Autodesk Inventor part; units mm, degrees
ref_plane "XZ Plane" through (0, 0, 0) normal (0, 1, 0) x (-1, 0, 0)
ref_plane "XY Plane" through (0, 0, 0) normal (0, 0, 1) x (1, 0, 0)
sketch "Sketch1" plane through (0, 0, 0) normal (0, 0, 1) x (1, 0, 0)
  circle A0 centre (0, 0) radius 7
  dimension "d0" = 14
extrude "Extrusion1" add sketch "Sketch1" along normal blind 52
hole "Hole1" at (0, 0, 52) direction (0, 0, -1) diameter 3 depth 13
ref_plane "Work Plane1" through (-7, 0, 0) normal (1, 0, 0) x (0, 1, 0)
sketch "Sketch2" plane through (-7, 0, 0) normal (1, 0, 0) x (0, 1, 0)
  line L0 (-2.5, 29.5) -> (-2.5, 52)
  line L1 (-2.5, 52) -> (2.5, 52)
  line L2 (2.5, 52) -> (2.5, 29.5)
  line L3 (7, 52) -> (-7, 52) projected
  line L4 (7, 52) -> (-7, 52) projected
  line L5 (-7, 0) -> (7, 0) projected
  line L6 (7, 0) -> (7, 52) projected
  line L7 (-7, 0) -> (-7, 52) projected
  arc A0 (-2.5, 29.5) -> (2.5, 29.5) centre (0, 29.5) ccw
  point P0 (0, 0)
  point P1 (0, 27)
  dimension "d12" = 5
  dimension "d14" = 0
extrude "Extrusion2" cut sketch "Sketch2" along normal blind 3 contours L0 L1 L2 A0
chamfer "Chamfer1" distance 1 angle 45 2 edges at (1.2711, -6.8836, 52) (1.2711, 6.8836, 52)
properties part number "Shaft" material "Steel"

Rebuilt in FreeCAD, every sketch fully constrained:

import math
import FreeCAD as App
import Part
import Sketcher

V = App.Vector
Q = App.Units.Quantity


def edges_at(feature, points):
    """Names of the edges that pass closest to the given points."""
    edges = feature.Shape.Edges
    near = lambda p: min(range(len(edges)), key=lambda i: edges[i].distToShape(Part.Vertex(*p))[0])
    return sorted({f"Edge{near(p) + 1}" for p in points})

doc = App.newDocument("Part")
params = doc.addObject("Spreadsheet::Sheet", "Params")
for row, (alias, value) in enumerate([
    ("sketch1_diameter", "14 mm"),
    ("pad1_length", "52 mm"),
    ("sketch2_diameter", "3 mm"),
    ("hole_diameter", "3 mm"),
    ("hole_depth", "13 mm"),
    ("sketch3_radius", "2.5 mm"),
    ("sketch3_height", "22.5 mm"),
    ("pocket1_length", "3 mm"),
    ("chamfer_size", "1 mm"),
], start=1):
    params.set(f"A{row}", alias)
    params.set(f"B{row}", "=" + value)
    params.setAlias(f"B{row}", alias)

body = doc.addObject("PartDesign::Body", "Body")

sketch1 = doc.addObject("Sketcher::SketchObject", "Sketch")
body.addObject(sketch1)
sketch1.AttachmentSupport = (doc.XY_Plane, [""])
sketch1.MapMode = "FlatFace"
sketch1.addGeometry(Part.Circle(V(0, 0, 0), V(0, 0, 1), 7), False)
sketch1.addConstraint([
    Sketcher.Constraint("Coincident", 0, 3, -1, 1),
    Sketcher.Constraint("Diameter", 0, Q("14 mm")),
])
sketch1.setExpression("Constraints[1]", "Params.sketch1_diameter")
pad1 = doc.addObject("PartDesign::Pad", "Pad")
body.addObject(pad1)
pad1.Profile = sketch1
pad1.setExpression("Length", "Params.pad1_length")

sketch2 = doc.addObject("Sketcher::SketchObject", "Sketch001")
body.addObject(sketch2)
sketch2.AttachmentSupport = (doc.XY_Plane, [""])
sketch2.MapMode = "FlatFace"
sketch2.AttachmentOffset = App.Placement(V(0, 0, 52), App.Rotation())
sketch2.addGeometry(Part.Circle(V(0, 0, 0), V(0, 0, 1), 1.5), False)
sketch2.addConstraint([
    Sketcher.Constraint("Coincident", 0, 3, -1, 1),
    Sketcher.Constraint("Diameter", 0, Q("3 mm")),
])
sketch2.setExpression("Constraints[1]", "Params.sketch2_diameter")
doc.recompute()
hole = doc.addObject("PartDesign::Hole", "Hole")
body.addObject(hole)
hole.Profile = sketch2
hole.ThreadType = "None"
hole.setExpression("Diameter", "Params.hole_diameter")
hole.DepthType = "Dimension"
hole.setExpression("Depth", "Params.hole_depth")
hole.DrillPoint = "Flat"

sketch3 = doc.addObject("Sketcher::SketchObject", "Sketch002")
body.addObject(sketch3)
sketch3.AttachmentSupport = (doc.YZ_Plane, [""])
sketch3.MapMode = "FlatFace"
sketch3.AttachmentOffset = App.Placement(V(0, 0, -7), App.Rotation())
sketch3.addGeometry([
    Part.LineSegment(V(-2.5, 52, 0), V(-2.5, 29.5, 0)),
    Part.ArcOfCircle(Part.Circle(V(0, 29.5, 0), V(0, 0, 1), 2.5), math.radians(180), math.radians(360)),
    Part.LineSegment(V(2.5, 29.5, 0), V(2.5, 52, 0)),
    Part.LineSegment(V(2.5, 52, 0), V(-2.5, 52, 0)),
], False)
sketch3.addConstraint([
    Sketcher.Constraint("Tangent", 0, 2, 1, 1),
    Sketcher.Constraint("Tangent", 1, 2, 2, 1),
    Sketcher.Constraint("Coincident", 2, 2, 3, 1),
    Sketcher.Constraint("Coincident", 3, 2, 0, 1),
    Sketcher.Constraint("Vertical", 0),
    Sketcher.Constraint("Vertical", 2),
    Sketcher.Constraint("Horizontal", 3),
    Sketcher.Constraint("PointOnObject", 1, 3, -2),
    Sketcher.Constraint("Radius", 1, Q("2.5 mm")),
    Sketcher.Constraint("DistanceY", 0, 2, 0, 1, Q("22.5 mm")),
    Sketcher.Constraint("DistanceY", -1, 1, 2, 2, Q("52 mm")),
])
sketch3.setExpression("Constraints[8]", "Params.sketch3_radius")
sketch3.setExpression("Constraints[9]", "Params.sketch3_height")
pocket1 = doc.addObject("PartDesign::Pocket", "Pocket")
body.addObject(pocket1)
pocket1.Profile = sketch3
pocket1.setExpression("Length", "Params.pocket1_length")
pocket1.Reversed = True
doc.recompute()

chamfer = doc.addObject("PartDesign::Chamfer", "Chamfer")
body.addObject(chamfer)
chamfer.Base = (pocket1, edges_at(pocket1, [(1.271, -6.884, 52), (1.271, 6.884, 52)]))
chamfer.setExpression("Size", "Params.chamfer_size")

doc.recompute()
